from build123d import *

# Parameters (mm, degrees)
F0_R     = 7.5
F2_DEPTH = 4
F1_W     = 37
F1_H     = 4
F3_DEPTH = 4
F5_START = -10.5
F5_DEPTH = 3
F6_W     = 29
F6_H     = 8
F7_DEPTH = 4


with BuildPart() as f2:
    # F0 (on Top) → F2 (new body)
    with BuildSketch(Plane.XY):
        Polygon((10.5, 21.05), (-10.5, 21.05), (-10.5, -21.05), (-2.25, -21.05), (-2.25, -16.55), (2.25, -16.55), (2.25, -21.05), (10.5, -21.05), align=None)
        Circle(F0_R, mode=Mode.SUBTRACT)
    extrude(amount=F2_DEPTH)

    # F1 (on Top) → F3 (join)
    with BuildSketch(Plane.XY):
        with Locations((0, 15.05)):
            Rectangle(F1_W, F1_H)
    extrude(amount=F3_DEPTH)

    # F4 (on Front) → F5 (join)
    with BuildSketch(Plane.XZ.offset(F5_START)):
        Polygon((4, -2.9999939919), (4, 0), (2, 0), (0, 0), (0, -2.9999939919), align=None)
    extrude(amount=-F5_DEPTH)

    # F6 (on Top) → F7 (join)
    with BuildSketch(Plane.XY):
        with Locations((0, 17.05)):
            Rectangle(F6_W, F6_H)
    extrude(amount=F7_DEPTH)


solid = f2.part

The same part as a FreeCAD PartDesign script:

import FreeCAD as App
import Part
import Sketcher

V = App.Vector

doc = App.newDocument("Part")
body = doc.addObject("PartDesign::Body", "Body")

# Sketch on XY plane
sketch1 = body.newObject("Sketcher::SketchObject", "Sketch")
sketch1.AttachmentSupport = (doc.getObject("XY_Plane"), [""])
sketch1.MapMode = "FlatFace"
sketch1.addGeometry([
    Part.LineSegment(V(10.5, 21.05, 0), V(-10.5, 21.05, 0)),  # 0
    Part.LineSegment(V(-10.5, 21.05, 0), V(-10.5, -21.05, 0)),  # 1
    Part.LineSegment(V(-10.5, -21.05, 0), V(-2.25, -21.05, 0)),  # 2
    Part.LineSegment(V(-2.25, -21.05, 0), V(-2.25, -16.55, 0)),  # 3
    Part.LineSegment(V(-2.25, -16.55, 0), V(2.25, -16.55, 0)),  # 4
    Part.LineSegment(V(2.25, -16.55, 0), V(2.25, -21.05, 0)),  # 5
    Part.LineSegment(V(2.25, -21.05, 0), V(10.5, -21.05, 0)),  # 6
    Part.LineSegment(V(10.5, -21.05, 0), V(10.5, 21.05, 0)),  # 7
    Part.Circle(V(0, 0, 0), V(0, 0, 1), 7.5),  # 8
], False)
sketch1.addConstraint([
    Sketcher.Constraint("Coincident", 0, 2, 1, 1),
    Sketcher.Constraint("Coincident", 1, 2, 2, 1),
    Sketcher.Constraint("Coincident", 2, 2, 3, 1),
    Sketcher.Constraint("Coincident", 3, 2, 4, 1),
    Sketcher.Constraint("Coincident", 4, 2, 5, 1),
    Sketcher.Constraint("Coincident", 5, 2, 6, 1),
    Sketcher.Constraint("Coincident", 6, 2, 7, 1),
    Sketcher.Constraint("Coincident", 7, 2, 0, 1),
    Sketcher.Constraint("Horizontal", 0),
    Sketcher.Constraint("Vertical", 1),
    Sketcher.Constraint("Horizontal", 2),
    Sketcher.Constraint("Vertical", 3),
    Sketcher.Constraint("Horizontal", 4),
    Sketcher.Constraint("Vertical", 5),
    Sketcher.Constraint("Horizontal", 6),
    Sketcher.Constraint("Vertical", 7),
    Sketcher.Constraint("Coincident", 8, 3, -1, 1),
    Sketcher.Constraint("Symmetric", 0, 2, 6, 2, -1, 1),
    Sketcher.Constraint("Symmetric", 2, 2, 5, 2, -2),
    Sketcher.Constraint("Equal", 4, 3),
    Sketcher.Constraint("Diameter", 8, 15.0),
    Sketcher.Constraint("DistanceX", 0, 2, 0, 1, 21.0),
    Sketcher.Constraint("DistanceX", 4, 1, 4, 2, 4.5),
    Sketcher.Constraint("DistanceY", 1, 2, 1, 1, 42.1),
])
pad1 = body.newObject("PartDesign::Pad", "Pad")
pad1.Profile = sketch1
pad1.Length = 4

# Sketch on XY plane
sketch2 = body.newObject("Sketcher::SketchObject", "Sketch001")
sketch2.AttachmentSupport = (doc.getObject("XY_Plane"), [""])
sketch2.MapMode = "FlatFace"
sketch2.addGeometry([
    Part.LineSegment(V(-18.5, 17.05, 0), V(-18.5, 13.05, 0)),
    Part.LineSegment(V(-18.5, 13.05, 0), V(18.5, 13.05, 0)),
    Part.LineSegment(V(18.5, 13.05, 0), V(18.5, 17.05, 0)),
    Part.LineSegment(V(18.5, 17.05, 0), V(-18.5, 17.05, 0)),
], False)
sketch2.addConstraint([
    Sketcher.Constraint("Coincident", 0, 2, 1, 1),
    Sketcher.Constraint("Coincident", 1, 2, 2, 1),
    Sketcher.Constraint("Coincident", 2, 2, 3, 1),
    Sketcher.Constraint("Coincident", 3, 2, 0, 1),
    Sketcher.Constraint("Vertical", 0),
    Sketcher.Constraint("Horizontal", 1),
    Sketcher.Constraint("Vertical", 2),
    Sketcher.Constraint("Horizontal", 3),
    Sketcher.Constraint("DistanceX", 1, 1, 1, 2, 37.0),
    Sketcher.Constraint("DistanceY", 0, 2, 0, 1, 4.0),
    Sketcher.Constraint("DistanceX", 0, 2, -1, 1, 18.5),
    Sketcher.Constraint("DistanceY", -1, 1, 0, 2, 13.05),
])
pad2 = body.newObject("PartDesign::Pad", "Pad001")
pad2.Profile = sketch2
pad2.Length = 4

# Sketch on XZ plane
sketch3 = body.newObject("Sketcher::SketchObject", "Sketch002")
sketch3.AttachmentSupport = (doc.getObject("XZ_Plane"), [""])
sketch3.MapMode = "FlatFace"
sketch3.AttachmentOffset = App.Placement(V(0, 0, -10.5), App.Rotation())
sketch3.addGeometry([
    Part.LineSegment(V(4, -2.999994, 0), V(4, 0, 0)),
    Part.LineSegment(V(4, 0, 0), V(0, 0, 0)),
    Part.LineSegment(V(0, 0, 0), V(0, -2.999994, 0)),
    Part.LineSegment(V(0, -2.999994, 0), V(4, -2.999994, 0)),
], False)
sketch3.addConstraint([
    Sketcher.Constraint("Coincident", 0, 2, 1, 1),
    Sketcher.Constraint("Coincident", 1, 2, 2, 1),
    Sketcher.Constraint("Coincident", 2, 2, 3, 1),
    Sketcher.Constraint("Coincident", 3, 2, 0, 1),
    Sketcher.Constraint("Vertical", 0),
    Sketcher.Constraint("Horizontal", 1),
    Sketcher.Constraint("Vertical", 2),
    Sketcher.Constraint("Horizontal", 3),
    Sketcher.Constraint("Coincident", 1, 2, -1, 1),
    Sketcher.Constraint("DistanceX", 1, 2, 1, 1, 4.0),
    Sketcher.Constraint("DistanceY", 0, 1, 0, 2, 2.999994),
])
pad3 = body.newObject("PartDesign::Pad", "Pad002")
pad3.Profile = sketch3
pad3.Length = 3
pad3.Reversed = True

# Sketch on XY plane
sketch4 = body.newObject("Sketcher::SketchObject", "Sketch003")
sketch4.AttachmentSupport = (doc.getObject("XY_Plane"), [""])
sketch4.MapMode = "FlatFace"
sketch4.addGeometry([
    Part.LineSegment(V(-14.5, 21.05, 0), V(-14.5, 13.05, 0)),
    Part.LineSegment(V(-14.5, 13.05, 0), V(14.5, 13.05, 0)),
    Part.LineSegment(V(14.5, 13.05, 0), V(14.5, 21.05, 0)),
    Part.LineSegment(V(14.5, 21.05, 0), V(-14.5, 21.05, 0)),
], False)
sketch4.addConstraint([
    Sketcher.Constraint("Coincident", 0, 2, 1, 1),
    Sketcher.Constraint("Coincident", 1, 2, 2, 1),
    Sketcher.Constraint("Coincident", 2, 2, 3, 1),
    Sketcher.Constraint("Coincident", 3, 2, 0, 1),
    Sketcher.Constraint("Vertical", 0),
    Sketcher.Constraint("Horizontal", 1),
    Sketcher.Constraint("Vertical", 2),
    Sketcher.Constraint("Horizontal", 3),
    Sketcher.Constraint("DistanceX", 1, 1, 1, 2, 29.0),
    Sketcher.Constraint("DistanceY", 0, 2, 0, 1, 8.0),
    Sketcher.Constraint("DistanceX", 0, 2, -1, 1, 14.5),
    Sketcher.Constraint("DistanceY", -1, 1, 0, 2, 13.05),
])
pad4 = body.newObject("PartDesign::Pad", "Pad003")
pad4.Profile = sketch4
pad4.Length = 4

doc.recompute()
